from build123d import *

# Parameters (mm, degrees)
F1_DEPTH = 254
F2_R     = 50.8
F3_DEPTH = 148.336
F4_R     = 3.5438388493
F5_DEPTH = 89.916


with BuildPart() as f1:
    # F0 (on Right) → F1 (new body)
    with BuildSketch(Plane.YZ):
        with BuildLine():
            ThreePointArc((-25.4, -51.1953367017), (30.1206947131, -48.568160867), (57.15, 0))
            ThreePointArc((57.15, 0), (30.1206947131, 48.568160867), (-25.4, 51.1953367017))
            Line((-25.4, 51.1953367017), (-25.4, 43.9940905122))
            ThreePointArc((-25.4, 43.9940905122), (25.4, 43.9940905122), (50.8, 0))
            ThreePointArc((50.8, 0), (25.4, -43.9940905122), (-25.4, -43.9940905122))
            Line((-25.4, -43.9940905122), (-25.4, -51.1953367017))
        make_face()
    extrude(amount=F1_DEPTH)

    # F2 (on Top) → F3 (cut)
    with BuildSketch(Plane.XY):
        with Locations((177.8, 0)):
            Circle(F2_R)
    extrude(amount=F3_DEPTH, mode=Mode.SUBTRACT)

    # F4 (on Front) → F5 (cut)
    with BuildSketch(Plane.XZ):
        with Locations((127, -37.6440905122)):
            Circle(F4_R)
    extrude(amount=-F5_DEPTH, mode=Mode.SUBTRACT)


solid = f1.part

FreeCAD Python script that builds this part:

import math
import FreeCAD as App
import Part
import Sketcher

V = App.Vector
Q = App.Units.Quantity

doc = App.newDocument("Part")
body = doc.addObject("PartDesign::Body", "Body")

sketch1 = doc.addObject("Sketcher::SketchObject", "Sketch")
body.addObject(sketch1)
sketch1.AttachmentSupport = (doc.YZ_Plane, [""])
sketch1.MapMode = "FlatFace"
sketch1.addGeometry(Part.ArcOfCircle(Part.Circle(V(0, 0, 0), V(0, 0, 1), 57.15), math.radians(-116.3878), math.radians(0)), False)
sketch1.addGeometry(Part.ArcOfCircle(Part.Circle(V(0, 0, 0), V(0, 0, 1), 57.15), math.radians(0), math.radians(116.3878)), False)
sketch1.addGeometry(Part.LineSegment(V(-25.4, 51.195337, 0), V(-25.4, 43.994091, 0)), False)
sketch1.addGeometry(Part.ArcOfCircle(Part.Circle(V(0, 0, 0), V(0, 0, 1), 50.8), math.radians(0), math.radians(120)), False)
sketch1.addGeometry(Part.ArcOfCircle(Part.Circle(V(0, 0, 0), V(0, 0, 1), 50.8), math.radians(-120), math.radians(0)), False)
sketch1.addGeometry(Part.LineSegment(V(-25.4, -43.994091, 0), V(-25.4, -51.195337, 0)), False)
sketch1.addConstraint(Sketcher.Constraint("Tangent", 0, 2, 1, 1))
sketch1.addConstraint(Sketcher.Constraint("Coincident", 1, 2, 2, 1))
sketch1.addConstraint(Sketcher.Constraint("Coincident", 2, 2, 3, 2))
sketch1.addConstraint(Sketcher.Constraint("Tangent", 3, 1, 4, 2))
sketch1.addConstraint(Sketcher.Constraint("Coincident", 4, 1, 5, 1))
sketch1.addConstraint(Sketcher.Constraint("Coincident", 5, 2, 0, 1))
sketch1.addConstraint(Sketcher.Constraint("Vertical", 2))
sketch1.addConstraint(Sketcher.Constraint("Vertical", 5))
sketch1.addConstraint(Sketcher.Constraint("Coincident", 0, 3, -1, 1))
sketch1.addConstraint(Sketcher.Constraint("Coincident", 3, 3, -1, 1))
sketch1.addConstraint(Sketcher.Constraint("Equal", 0, 1))
sketch1.addConstraint(Sketcher.Constraint("Equal", 3, 4))
sketch1.addConstraint(Sketcher.Constraint("PointOnObject", 0, 2, -1))
sketch1.addConstraint(Sketcher.Constraint("PointOnObject", 3, 1, -1))
sketch1.addConstraint(Sketcher.Constraint("Vertical", 2, 2, 4, 1))
sketch1.addConstraint(Sketcher.Constraint("Radius", 3, Q("2 in")))
sketch1.addConstraint(Sketcher.Constraint("Radius", 0, Q("2.25 in")))
sketch1.addConstraint(Sketcher.Constraint("DistanceX", 1, 2, -1, 1, Q("1 in")))
pad1 = doc.addObject("PartDesign::Pad", "Pad")
body.addObject(pad1)
pad1.Profile = sketch1
pad1.Length = Q("10 in")

sketch2 = doc.addObject("Sketcher::SketchObject", "Sketch001")
body.addObject(sketch2)
sketch2.AttachmentSupport = (doc.XY_Plane, [""])
sketch2.MapMode = "FlatFace"
sketch2.addGeometry(Part.Circle(V(177.8, 0, 0), V(0, 0, 1), 50.8), False)
sketch2.addConstraint(Sketcher.Constraint("PointOnObject", 0, 3, -1))
sketch2.addConstraint(Sketcher.Constraint("Diameter", 0, Q("4 in")))
sketch2.addConstraint(Sketcher.Constraint("DistanceX", -1, 1, 0, 3, Q("7 in")))
pocket1 = doc.addObject("PartDesign::Pocket", "Pocket")
body.addObject(pocket1)
pocket1.Profile = sketch2
pocket1.Length = Q("5.84 in")
pocket1.Reversed = True

sketch3 = doc.addObject("Sketcher::SketchObject", "Sketch002")
body.addObject(sketch3)
sketch3.AttachmentSupport = (doc.XZ_Plane, [""])
sketch3.MapMode = "FlatFace"
sketch3.addGeometry(Part.Circle(V(127, -37.644091, 0), V(0, 0, 1), 3.543839), False)
sketch3.addConstraint(Sketcher.Constraint("DistanceX", -1, 1, 0, 3, Q("5 in")))
sketch3.addConstraint(Sketcher.Constraint("Diameter", 0, 7.087678))
sketch3.addConstraint(Sketcher.Constraint("DistanceY", 0, 3, -1, 1, 37.644091))
pocket2 = doc.addObject("PartDesign::Pocket", "Pocket001")
body.addObject(pocket2)
pocket2.Profile = sketch3
pocket2.Length = Q("3.54 in")

doc.recompute()
